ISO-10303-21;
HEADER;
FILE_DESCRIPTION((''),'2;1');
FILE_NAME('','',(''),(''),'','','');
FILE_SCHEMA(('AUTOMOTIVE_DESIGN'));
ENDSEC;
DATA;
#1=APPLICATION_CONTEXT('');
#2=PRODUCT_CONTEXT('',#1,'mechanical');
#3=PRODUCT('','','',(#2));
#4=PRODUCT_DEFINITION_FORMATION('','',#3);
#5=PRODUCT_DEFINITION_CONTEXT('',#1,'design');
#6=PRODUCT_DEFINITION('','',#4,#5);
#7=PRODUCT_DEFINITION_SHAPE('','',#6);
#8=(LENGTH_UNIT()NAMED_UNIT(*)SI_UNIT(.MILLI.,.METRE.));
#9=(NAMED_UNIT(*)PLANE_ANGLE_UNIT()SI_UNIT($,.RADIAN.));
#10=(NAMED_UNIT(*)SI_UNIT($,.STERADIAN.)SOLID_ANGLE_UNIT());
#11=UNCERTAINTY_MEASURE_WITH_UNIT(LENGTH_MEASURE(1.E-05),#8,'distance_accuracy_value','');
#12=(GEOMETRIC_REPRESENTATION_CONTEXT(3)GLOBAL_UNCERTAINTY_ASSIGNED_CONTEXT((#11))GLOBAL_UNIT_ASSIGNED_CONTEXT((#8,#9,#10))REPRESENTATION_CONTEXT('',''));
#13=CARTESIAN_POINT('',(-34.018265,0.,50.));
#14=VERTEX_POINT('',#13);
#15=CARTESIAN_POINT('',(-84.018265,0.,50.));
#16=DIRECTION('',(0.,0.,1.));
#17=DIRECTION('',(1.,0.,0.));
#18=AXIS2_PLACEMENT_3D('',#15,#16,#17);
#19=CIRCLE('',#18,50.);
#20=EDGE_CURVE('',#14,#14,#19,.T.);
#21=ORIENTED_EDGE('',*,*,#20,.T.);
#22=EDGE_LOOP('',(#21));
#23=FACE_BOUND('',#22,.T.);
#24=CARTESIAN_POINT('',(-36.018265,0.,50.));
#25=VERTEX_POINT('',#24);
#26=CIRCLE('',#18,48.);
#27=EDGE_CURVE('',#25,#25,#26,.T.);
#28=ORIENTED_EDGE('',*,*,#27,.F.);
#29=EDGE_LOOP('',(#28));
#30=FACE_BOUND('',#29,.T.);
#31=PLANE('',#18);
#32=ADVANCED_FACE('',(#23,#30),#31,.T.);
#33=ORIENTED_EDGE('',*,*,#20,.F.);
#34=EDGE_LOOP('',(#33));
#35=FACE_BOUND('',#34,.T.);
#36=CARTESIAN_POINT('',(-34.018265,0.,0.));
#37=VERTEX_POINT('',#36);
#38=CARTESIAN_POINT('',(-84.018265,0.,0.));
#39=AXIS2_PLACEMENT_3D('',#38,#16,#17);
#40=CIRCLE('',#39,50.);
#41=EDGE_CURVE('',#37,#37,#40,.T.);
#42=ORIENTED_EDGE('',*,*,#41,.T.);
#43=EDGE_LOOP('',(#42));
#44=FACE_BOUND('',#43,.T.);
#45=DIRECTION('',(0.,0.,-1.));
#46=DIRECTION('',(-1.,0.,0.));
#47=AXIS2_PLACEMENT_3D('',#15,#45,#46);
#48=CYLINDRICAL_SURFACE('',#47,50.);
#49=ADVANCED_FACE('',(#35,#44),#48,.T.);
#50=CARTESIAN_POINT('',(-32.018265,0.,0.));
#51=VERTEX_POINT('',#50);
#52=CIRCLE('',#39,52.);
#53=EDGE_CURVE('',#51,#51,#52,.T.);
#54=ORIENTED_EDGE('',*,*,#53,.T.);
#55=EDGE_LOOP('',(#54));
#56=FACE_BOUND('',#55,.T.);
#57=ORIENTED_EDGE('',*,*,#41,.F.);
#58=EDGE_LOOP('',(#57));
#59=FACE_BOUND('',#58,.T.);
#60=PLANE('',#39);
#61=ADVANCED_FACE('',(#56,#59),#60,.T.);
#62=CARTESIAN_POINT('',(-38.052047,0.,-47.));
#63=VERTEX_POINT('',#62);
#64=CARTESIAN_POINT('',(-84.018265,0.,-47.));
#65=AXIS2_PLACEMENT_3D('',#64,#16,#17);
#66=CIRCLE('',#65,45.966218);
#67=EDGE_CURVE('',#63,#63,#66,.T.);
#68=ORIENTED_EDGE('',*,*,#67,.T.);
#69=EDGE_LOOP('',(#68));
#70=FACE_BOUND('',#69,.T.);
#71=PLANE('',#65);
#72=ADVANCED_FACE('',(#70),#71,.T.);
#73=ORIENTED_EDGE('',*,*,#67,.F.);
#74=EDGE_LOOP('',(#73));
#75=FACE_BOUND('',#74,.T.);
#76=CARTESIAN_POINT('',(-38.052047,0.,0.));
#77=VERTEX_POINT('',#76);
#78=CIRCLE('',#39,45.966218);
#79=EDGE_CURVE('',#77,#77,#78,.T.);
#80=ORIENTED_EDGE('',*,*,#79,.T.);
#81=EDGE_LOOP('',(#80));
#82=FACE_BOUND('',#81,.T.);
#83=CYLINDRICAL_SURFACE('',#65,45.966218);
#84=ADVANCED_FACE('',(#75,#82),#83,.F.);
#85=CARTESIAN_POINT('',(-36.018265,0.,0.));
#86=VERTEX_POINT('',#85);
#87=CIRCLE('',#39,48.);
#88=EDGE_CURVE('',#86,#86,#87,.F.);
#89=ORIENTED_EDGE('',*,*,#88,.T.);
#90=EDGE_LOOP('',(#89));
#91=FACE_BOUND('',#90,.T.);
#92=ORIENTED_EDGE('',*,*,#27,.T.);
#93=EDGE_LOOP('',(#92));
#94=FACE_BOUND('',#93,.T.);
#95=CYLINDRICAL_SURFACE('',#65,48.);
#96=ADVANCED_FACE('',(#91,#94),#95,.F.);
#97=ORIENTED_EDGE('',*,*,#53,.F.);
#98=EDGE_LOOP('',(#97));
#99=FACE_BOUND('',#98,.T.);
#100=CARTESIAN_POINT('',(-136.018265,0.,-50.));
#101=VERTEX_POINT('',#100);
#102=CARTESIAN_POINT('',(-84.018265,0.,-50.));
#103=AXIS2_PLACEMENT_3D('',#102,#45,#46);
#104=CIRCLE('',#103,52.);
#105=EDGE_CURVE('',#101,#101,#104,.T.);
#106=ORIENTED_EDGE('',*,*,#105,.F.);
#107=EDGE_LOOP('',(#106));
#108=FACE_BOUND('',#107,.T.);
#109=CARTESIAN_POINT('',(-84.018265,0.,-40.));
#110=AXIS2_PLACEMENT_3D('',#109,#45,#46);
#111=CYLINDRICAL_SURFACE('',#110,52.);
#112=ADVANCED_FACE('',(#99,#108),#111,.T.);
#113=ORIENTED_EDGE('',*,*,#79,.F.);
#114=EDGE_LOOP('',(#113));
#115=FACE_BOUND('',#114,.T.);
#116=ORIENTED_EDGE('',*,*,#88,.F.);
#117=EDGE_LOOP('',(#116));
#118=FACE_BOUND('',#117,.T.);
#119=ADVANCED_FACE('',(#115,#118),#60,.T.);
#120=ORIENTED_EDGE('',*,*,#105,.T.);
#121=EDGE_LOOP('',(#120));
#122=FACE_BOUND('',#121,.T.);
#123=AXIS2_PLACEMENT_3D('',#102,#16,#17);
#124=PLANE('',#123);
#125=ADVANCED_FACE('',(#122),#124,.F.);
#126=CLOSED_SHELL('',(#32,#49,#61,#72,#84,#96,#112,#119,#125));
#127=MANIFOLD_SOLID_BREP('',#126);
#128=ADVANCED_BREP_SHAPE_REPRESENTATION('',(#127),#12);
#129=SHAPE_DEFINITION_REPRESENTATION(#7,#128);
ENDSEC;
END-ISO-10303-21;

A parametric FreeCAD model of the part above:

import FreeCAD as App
import Part
import Sketcher
Q = App.Units.Quantity

doc = App.newDocument("Part")
body = doc.addObject("PartDesign::Body", "Body")

# Sketch on XY plane
sketch1 = body.newObject("Sketcher::SketchObject", "Sketch")
sketch1.AttachmentSupport = (doc.getObject("XY_Plane"), [""])
sketch1.MapMode = "FlatFace"
sketch1.addGeometry(Part.Circle(App.Vector(-84.018265, 0, 0), App.Vector(0, 0, 1), 50), False)
sketch1.addConstraint([
    Sketcher.Constraint("PointOnObject", 0, 3, -1),
    Sketcher.Constraint("Diameter", 0, Q("100 mm")),
    Sketcher.Constraint("DistanceX", 0, 3, -1, 1, Q("84.018265 mm")),
])
pad1 = body.newObject("PartDesign::Pad", "Pad")
pad1.Profile = sketch1
pad1.Length = 100
pad1.Midplane = True

# Sketch on XY plane
sketch2 = body.newObject("Sketcher::SketchObject", "Sketch001")
sketch2.AttachmentSupport = (doc.getObject("XY_Plane"), [""])
sketch2.MapMode = "FlatFace"
sketch2.AttachmentOffset = App.Placement(App.Vector(0, 0, -50), App.Rotation())
sketch2.addGeometry(Part.Circle(App.Vector(-84.018265, 0, 0), App.Vector(0, 0, 1), 52), False)
sketch2.addConstraint([
    Sketcher.Constraint("PointOnObject", 0, 3, -1),
    Sketcher.Constraint("Diameter", 0, Q("104 mm")),
    Sketcher.Constraint("DistanceX", 0, 3, -1, 1, Q("84.018265 mm")),
])
pad2 = body.newObject("PartDesign::Pad", "Pad001")
pad2.Profile = sketch2
pad2.Length = 10

# Sketch on XY plane
sketch3 = body.newObject("Sketcher::SketchObject", "Sketch002")
sketch3.AttachmentSupport = (doc.getObject("XY_Plane"), [""])
sketch3.MapMode = "FlatFace"
sketch3.AttachmentOffset = App.Placement(App.Vector(0, 0, 50), App.Rotation())
sketch3.addGeometry(Part.Circle(App.Vector(-84.018265, 0, 0), App.Vector(0, 0, 1), 48), False)
sketch3.addConstraint([
    Sketcher.Constraint("PointOnObject", 0, 3, -1),
    Sketcher.Constraint("Diameter", 0, Q("96 mm")),
    Sketcher.Constraint("DistanceX", 0, 3, -1, 1, Q("84.018265 mm")),
])
pocket1 = body.newObject("PartDesign::Pocket", "Pocket")
pocket1.Profile = sketch3
pocket1.Length = 97

# Sketch on XY plane
sketch4 = body.newObject("Sketcher::SketchObject", "Sketch003")
sketch4.AttachmentSupport = (doc.getObject("XY_Plane"), [""])
sketch4.MapMode = "FlatFace"
sketch4.addGeometry(Part.Circle(App.Vector(-84.018265, 0, 0), App.Vector(0, 0, 1), 52), False)
sketch4.addConstraint([
    Sketcher.Constraint("PointOnObject", 0, 3, -1),
    Sketcher.Constraint("Diameter", 0, Q("104 mm")),
    Sketcher.Constraint("DistanceX", 0, 3, -1, 1, Q("84.018265 mm")),
])
pad3 = body.newObject("PartDesign::Pad", "Pad002")
pad3.Profile = sketch4
pad3.Length = 47
pad3.Reversed = True

# Sketch on XY plane
sketch5 = body.newObject("Sketcher::SketchObject", "Sketch004")
sketch5.AttachmentSupport = (doc.getObject("XY_Plane"), [""])
sketch5.MapMode = "FlatFace"
sketch5.addGeometry(Part.Circle(App.Vector(-84.018265, 0, 0), App.Vector(0, 0, 1), 45.966218), False)
sketch5.addConstraint([
    Sketcher.Constraint("PointOnObject", 0, 3, -1),
    Sketcher.Constraint("Diameter", 0, Q("91.932435 mm")),
    Sketcher.Constraint("DistanceX", 0, 3, -1, 1, Q("84.018265 mm")),
])
pocket2 = body.newObject("PartDesign::Pocket", "Pocket001")
pocket2.Profile = sketch5
pocket2.Length = 47

doc.recompute()
